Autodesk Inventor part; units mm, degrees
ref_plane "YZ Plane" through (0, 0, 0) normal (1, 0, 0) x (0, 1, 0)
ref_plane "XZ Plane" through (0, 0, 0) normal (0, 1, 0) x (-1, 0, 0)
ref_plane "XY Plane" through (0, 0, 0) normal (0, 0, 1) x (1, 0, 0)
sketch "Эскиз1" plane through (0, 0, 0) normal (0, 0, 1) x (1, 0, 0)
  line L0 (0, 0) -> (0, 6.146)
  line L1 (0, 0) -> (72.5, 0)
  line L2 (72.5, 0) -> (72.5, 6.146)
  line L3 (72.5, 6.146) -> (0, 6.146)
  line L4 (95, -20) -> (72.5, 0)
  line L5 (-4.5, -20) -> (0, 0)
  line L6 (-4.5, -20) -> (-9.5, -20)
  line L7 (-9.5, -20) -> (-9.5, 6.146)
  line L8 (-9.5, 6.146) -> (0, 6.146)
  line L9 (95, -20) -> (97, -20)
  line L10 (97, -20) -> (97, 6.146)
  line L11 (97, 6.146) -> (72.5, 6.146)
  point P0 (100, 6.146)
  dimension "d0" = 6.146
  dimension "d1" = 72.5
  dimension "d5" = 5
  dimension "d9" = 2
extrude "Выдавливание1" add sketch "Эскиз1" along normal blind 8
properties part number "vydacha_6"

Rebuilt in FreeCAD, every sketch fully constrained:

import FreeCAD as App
import Part
import Sketcher

V = App.Vector
Q = App.Units.Quantity

doc = App.newDocument("Part")
body = doc.addObject("PartDesign::Body", "Body")

sketch1 = doc.addObject("Sketcher::SketchObject", "Sketch")
body.addObject(sketch1)
sketch1.AttachmentSupport = (doc.XY_Plane, [""])
sketch1.MapMode = "FlatFace"
sketch1.addGeometry(Part.LineSegment(V(-4.5, -20, 0), V(0, 0, 0)), False)
sketch1.addGeometry(Part.LineSegment(V(0, 0, 0), V(72.5, 0, 0)), False)
sketch1.addGeometry(Part.LineSegment(V(72.5, 0, 0), V(95, -20, 0)), False)
sketch1.addGeometry(Part.LineSegment(V(95, -20, 0), V(97, -20, 0)), False)
sketch1.addGeometry(Part.LineSegment(V(97, -20, 0), V(97, 6.1, 0)), False)
sketch1.addGeometry(Part.LineSegment(V(97, 6.1, 0), V(-9.5, 6.1, 0)), False)
sketch1.addGeometry(Part.LineSegment(V(-9.5, 6.1, 0), V(-9.5, -20, 0)), False)
sketch1.addGeometry(Part.LineSegment(V(-9.5, -20, 0), V(-4.5, -20, 0)), False)
sketch1.addConstraint(Sketcher.Constraint("Coincident", 0, 2, 1, 1))
sketch1.addConstraint(Sketcher.Constraint("Coincident", 1, 2, 2, 1))
sketch1.addConstraint(Sketcher.Constraint("Coincident", 2, 2, 3, 1))
sketch1.addConstraint(Sketcher.Constraint("Coincident", 3, 2, 4, 1))
sketch1.addConstraint(Sketcher.Constraint("Coincident", 4, 2, 5, 1))
sketch1.addConstraint(Sketcher.Constraint("Coincident", 5, 2, 6, 1))
sketch1.addConstraint(Sketcher.Constraint("Coincident", 6, 2, 7, 1))
sketch1.addConstraint(Sketcher.Constraint("Coincident", 7, 2, 0, 1))
sketch1.addConstraint(Sketcher.Constraint("Horizontal", 1))
sketch1.addConstraint(Sketcher.Constraint("Horizontal", 3))
sketch1.addConstraint(Sketcher.Constraint("Vertical", 4))
sketch1.addConstraint(Sketcher.Constraint("Horizontal", 5))
sketch1.addConstraint(Sketcher.Constraint("Vertical", 6))
sketch1.addConstraint(Sketcher.Constraint("Horizontal", 7))
sketch1.addConstraint(Sketcher.Constraint("Coincident", 0, 2, -1, 1))
sketch1.addConstraint(Sketcher.Constraint("Horizontal", 3, 2, 6, 2))
sketch1.addConstraint(Sketcher.Constraint("DistanceX", 3, 1, 3, 2, Q("2 mm")))
sketch1.addConstraint(Sketcher.Constraint("DistanceX", 7, 1, 7, 2, Q("5 mm")))
sketch1.addConstraint(Sketcher.Constraint("DistanceX", 1, 1, 1, 2, Q("72.5 mm")))
sketch1.addConstraint(Sketcher.Constraint("DistanceX", 5, 2, 5, 1, Q("106.5 mm")))
sketch1.addConstraint(Sketcher.Constraint("DistanceY", -1, 1, 4, 2, Q("6.146 mm")))
sketch1.addConstraint(Sketcher.Constraint("DistanceX", -1, 1, 2, 2, Q("95 mm")))
sketch1.addConstraint(Sketcher.Constraint("DistanceY", 2, 2, -1, 1, Q("20 mm")))
pad1 = doc.addObject("PartDesign::Pad", "Pad")
body.addObject(pad1)
pad1.Profile = sketch1
pad1.Length = 8

doc.recompute()
